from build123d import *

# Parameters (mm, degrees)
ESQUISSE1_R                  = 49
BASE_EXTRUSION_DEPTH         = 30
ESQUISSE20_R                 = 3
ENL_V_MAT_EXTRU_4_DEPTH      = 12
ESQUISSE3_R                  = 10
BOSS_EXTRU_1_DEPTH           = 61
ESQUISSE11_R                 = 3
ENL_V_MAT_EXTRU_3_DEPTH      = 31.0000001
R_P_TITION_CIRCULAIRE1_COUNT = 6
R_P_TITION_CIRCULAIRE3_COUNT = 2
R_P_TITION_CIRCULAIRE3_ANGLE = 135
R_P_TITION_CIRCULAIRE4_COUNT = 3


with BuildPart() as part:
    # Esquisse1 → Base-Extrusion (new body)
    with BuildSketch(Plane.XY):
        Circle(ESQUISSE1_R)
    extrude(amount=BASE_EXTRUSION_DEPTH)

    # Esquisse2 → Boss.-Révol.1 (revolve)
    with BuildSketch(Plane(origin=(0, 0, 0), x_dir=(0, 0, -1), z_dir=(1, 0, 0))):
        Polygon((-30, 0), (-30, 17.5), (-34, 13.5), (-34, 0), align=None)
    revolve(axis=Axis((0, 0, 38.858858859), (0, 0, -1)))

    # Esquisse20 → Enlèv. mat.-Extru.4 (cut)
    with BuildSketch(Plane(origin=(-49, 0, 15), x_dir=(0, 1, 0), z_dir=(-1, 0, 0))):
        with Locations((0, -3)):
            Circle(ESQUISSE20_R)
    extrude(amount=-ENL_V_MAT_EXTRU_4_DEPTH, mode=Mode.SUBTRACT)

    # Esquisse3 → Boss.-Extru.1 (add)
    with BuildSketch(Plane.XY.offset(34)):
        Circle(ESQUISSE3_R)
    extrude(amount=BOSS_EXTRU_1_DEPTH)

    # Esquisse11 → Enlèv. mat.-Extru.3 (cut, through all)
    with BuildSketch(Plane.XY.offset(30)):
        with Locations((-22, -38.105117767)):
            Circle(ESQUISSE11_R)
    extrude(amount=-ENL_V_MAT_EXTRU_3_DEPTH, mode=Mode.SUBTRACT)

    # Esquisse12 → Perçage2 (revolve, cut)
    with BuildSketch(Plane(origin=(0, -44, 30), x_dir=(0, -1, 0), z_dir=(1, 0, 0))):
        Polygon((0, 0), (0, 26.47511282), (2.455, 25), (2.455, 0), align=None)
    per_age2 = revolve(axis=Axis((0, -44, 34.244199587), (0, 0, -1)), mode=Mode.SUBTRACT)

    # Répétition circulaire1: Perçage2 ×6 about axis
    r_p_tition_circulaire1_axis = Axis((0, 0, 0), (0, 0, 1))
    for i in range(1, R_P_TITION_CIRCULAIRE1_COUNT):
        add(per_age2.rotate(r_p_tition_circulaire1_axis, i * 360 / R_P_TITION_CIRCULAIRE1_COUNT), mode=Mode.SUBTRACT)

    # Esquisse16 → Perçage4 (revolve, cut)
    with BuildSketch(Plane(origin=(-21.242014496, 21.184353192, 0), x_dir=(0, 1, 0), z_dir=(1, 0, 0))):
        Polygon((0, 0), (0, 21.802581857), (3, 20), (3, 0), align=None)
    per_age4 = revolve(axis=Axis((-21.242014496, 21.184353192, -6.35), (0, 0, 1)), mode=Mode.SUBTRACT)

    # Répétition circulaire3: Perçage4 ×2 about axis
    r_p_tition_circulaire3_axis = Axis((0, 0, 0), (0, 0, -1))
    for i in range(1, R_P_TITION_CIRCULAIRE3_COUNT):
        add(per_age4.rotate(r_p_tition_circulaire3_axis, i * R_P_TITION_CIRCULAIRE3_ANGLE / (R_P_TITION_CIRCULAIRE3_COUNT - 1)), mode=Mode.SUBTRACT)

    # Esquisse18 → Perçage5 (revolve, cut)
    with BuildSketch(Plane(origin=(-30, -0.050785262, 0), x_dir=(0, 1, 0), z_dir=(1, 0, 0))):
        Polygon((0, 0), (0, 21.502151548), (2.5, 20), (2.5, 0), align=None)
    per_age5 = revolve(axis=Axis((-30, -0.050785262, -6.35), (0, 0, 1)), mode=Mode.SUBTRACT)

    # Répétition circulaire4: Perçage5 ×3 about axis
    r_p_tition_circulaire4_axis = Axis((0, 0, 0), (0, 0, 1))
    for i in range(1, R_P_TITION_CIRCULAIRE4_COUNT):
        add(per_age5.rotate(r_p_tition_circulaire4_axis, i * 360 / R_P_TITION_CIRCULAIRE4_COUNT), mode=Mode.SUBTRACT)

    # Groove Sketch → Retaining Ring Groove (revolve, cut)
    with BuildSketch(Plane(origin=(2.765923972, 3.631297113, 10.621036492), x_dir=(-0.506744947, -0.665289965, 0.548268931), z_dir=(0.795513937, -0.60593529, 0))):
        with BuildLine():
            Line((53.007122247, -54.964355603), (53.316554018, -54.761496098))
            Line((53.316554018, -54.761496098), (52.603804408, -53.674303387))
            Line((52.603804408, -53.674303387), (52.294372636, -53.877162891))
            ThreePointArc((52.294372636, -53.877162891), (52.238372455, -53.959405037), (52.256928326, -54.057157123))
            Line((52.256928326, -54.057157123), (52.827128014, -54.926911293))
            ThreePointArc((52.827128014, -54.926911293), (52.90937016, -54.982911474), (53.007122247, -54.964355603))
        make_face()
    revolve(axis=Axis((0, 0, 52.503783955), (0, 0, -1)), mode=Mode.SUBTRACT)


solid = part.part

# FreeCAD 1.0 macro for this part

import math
import FreeCAD as App
import Part
import Sketcher
Q = App.Units.Quantity


def add_polygon(sketch, points):
    """Adds a closed chain of lines whose ends are joined by coincident constraints."""
    first, n = sketch.GeometryCount, len(points)
    for a, b in zip(points, points[1:] + points[:1]):
        sketch.addGeometry(Part.LineSegment(App.Vector(*a, 0), App.Vector(*b, 0)), False)
    for i in range(n):
        sketch.addConstraint(Sketcher.Constraint("Coincident", first + i, 2, first + (i + 1) % n, 1))

doc = App.newDocument("Part")
params = doc.addObject("Spreadsheet::Sheet", "Params")
for row, (alias, value) in enumerate([
    ("sketch1_diameter", "98 mm"),
    ("pad1_length", "30 mm"),
    ("sketch2_height", "4 mm"),
    ("sketch2_width", "17.5 mm"),
    ("revolution_angle", "360 deg"),
    ("sketch3_diameter", "6 mm"),
    ("pocket1_length", "12 mm"),
    ("sketch4_diameter", "20 mm"),
    ("pad2_length", "61 mm"),
    ("sketch5_diameter", "6 mm"),
    ("sketch6_height", "25 mm"),
    ("groove_angle", "360 deg"),
    ("sketch7_width", "3 mm"),
    ("sketch7_height", "20 mm"),
    ("groove2_angle", "360 deg"),
    ("sketch8_height", "20 mm"),
    ("sketch8_width", "2.5 mm"),
    ("groove3_angle", "360 deg"),
    ("sketch9_radius", "0.13 mm"),
    ("sketch9_length", "1.3 mm"),
    ("sketch9_length2", "0.37 mm"),
    ("groove4_angle", "360 deg"),
], start=1):
    params.set(f"A{row}", alias)
    params.set(f"B{row}", "=" + value)
    params.setAlias(f"B{row}", alias)

body = doc.addObject("PartDesign::Body", "Body")

# Sketch on XY plane
sketch1 = doc.addObject("Sketcher::SketchObject", "Sketch")
body.addObject(sketch1)
sketch1.AttachmentSupport = (doc.XY_Plane, [""])
sketch1.MapMode = "FlatFace"
sketch1.addGeometry(Part.Circle(App.Vector(0, 0, 0), App.Vector(0, 0, 1), 49), False)
sketch1.addConstraint([
    Sketcher.Constraint("Coincident", 0, 3, -1, 1),
    Sketcher.Constraint("Diameter", 0, 98.0),
])
sketch1.setExpression("Constraints[1]", "Params.sketch1_diameter")
pad1 = doc.addObject("PartDesign::Pad", "Pad")
body.addObject(pad1)
pad1.Profile = sketch1
pad1.setExpression("Length", "Params.pad1_length")

# Sketch on YZ plane
sketch2 = doc.addObject("Sketcher::SketchObject", "Sketch001")
body.addObject(sketch2)
sketch2.AttachmentSupport = (doc.YZ_Plane, [""])
sketch2.MapMode = "FlatFace"
add_polygon(sketch2, [(0, 30), (17.5, 30), (13.5, 34), (0, 34)])  # lines 0-3
sketch2.addConstraint([
    Sketcher.Constraint("Horizontal", 0),
    Sketcher.Constraint("Horizontal", 2),
    Sketcher.Constraint("Vertical", 3),
    Sketcher.Constraint("PointOnObject", 2, 2, -2),
    Sketcher.Constraint("DistanceY", 3, 2, 3, 1, 4.0),
    Sketcher.Constraint("Angle", 1, Q("135 deg")),
    Sketcher.Constraint("DistanceX", 0, 1, 0, 2, 17.5),
    Sketcher.Constraint("DistanceY", -1, 1, 0, 2, 30.0),
])
sketch2.setExpression("Constraints[8]", "Params.sketch2_height")
sketch2.setExpression("Constraints[10]", "Params.sketch2_width")
revolution = doc.addObject("PartDesign::Revolution", "Revolution")
body.addObject(revolution)
revolution.Profile = sketch2
revolution.ReferenceAxis = (sketch2, ["V_Axis"])
revolution.setExpression("Angle", "Params.revolution_angle")

# Sketch on YZ plane
sketch3 = doc.addObject("Sketcher::SketchObject", "Sketch002")
body.addObject(sketch3)
sketch3.AttachmentSupport = (doc.YZ_Plane, [""])
sketch3.MapMode = "FlatFace"
sketch3.AttachmentOffset = App.Placement(App.Vector(0, 0, -49), App.Rotation())
sketch3.addGeometry(Part.Circle(App.Vector(0, 18, 0), App.Vector(0, 0, 1), 3), False)
sketch3.addConstraint([
    Sketcher.Constraint("PointOnObject", 0, 3, -2),
    Sketcher.Constraint("Diameter", 0, 6.0),
    Sketcher.Constraint("DistanceY", -1, 1, 0, 3, 18.0),
])
sketch3.setExpression("Constraints[1]", "Params.sketch3_diameter")
pocket1 = doc.addObject("PartDesign::Pocket", "Pocket")
body.addObject(pocket1)
pocket1.Profile = sketch3
pocket1.setExpression("Length", "Params.pocket1_length")
pocket1.Reversed = True

# Sketch on XY plane
sketch4 = doc.addObject("Sketcher::SketchObject", "Sketch003")
body.addObject(sketch4)
sketch4.AttachmentSupport = (doc.XY_Plane, [""])
sketch4.MapMode = "FlatFace"
sketch4.AttachmentOffset = App.Placement(App.Vector(0, 0, 34), App.Rotation())
sketch4.addGeometry(Part.Circle(App.Vector(0, 0, 0), App.Vector(0, 0, 1), 10), False)
sketch4.addConstraint([
    Sketcher.Constraint("Coincident", 0, 3, -1, 1),
    Sketcher.Constraint("Diameter", 0, 20.0),
])
sketch4.setExpression("Constraints[1]", "Params.sketch4_diameter")
pad2 = doc.addObject("PartDesign::Pad", "Pad001")
body.addObject(pad2)
pad2.Profile = sketch4
pad2.setExpression("Length", "Params.pad2_length")

# Sketch on XY plane
sketch5 = doc.addObject("Sketcher::SketchObject", "Sketch004")
body.addObject(sketch5)
sketch5.AttachmentSupport = (doc.XY_Plane, [""])
sketch5.MapMode = "FlatFace"
sketch5.AttachmentOffset = App.Placement(App.Vector(0, 0, 30), App.Rotation())
sketch5.addGeometry(Part.Circle(App.Vector(-22, -38.1, 0), App.Vector(0, 0, 1), 3), False)
sketch5.addConstraint([
    Sketcher.Constraint("Diameter", 0, 6.0),
    Sketcher.Constraint("DistanceX", 0, 3, -1, 1, 22.0),
    Sketcher.Constraint("DistanceY", 0, 3, -1, 1, 38.105118),
])
sketch5.setExpression("Constraints[0]", "Params.sketch5_diameter")
pocket2 = doc.addObject("PartDesign::Pocket", "Pocket001")
body.addObject(pocket2)
pocket2.Profile = sketch5
pocket2.Type = "ThroughAll"

# Sketch on YZ plane
sketch6 = doc.addObject("Sketcher::SketchObject", "Sketch005")
body.addObject(sketch6)
sketch6.AttachmentSupport = (doc.YZ_Plane, [""])
sketch6.MapMode = "FlatFace"
add_polygon(sketch6, [(-44, 3.5), (-44, 30), (-46.5, 30), (-46.5, 5)])  # lines 0-3
sketch6.addGeometry(Part.LineSegment(App.Vector(-44, 30, 0), App.Vector(-44, 3.5, 0)), True)  # axis
sketch6.addConstraint([
    Sketcher.Constraint("Vertical", 0),
    Sketcher.Constraint("Horizontal", 1),
    Sketcher.Constraint("Vertical", 2),
    Sketcher.Constraint("Vertical", 4),
    Sketcher.Constraint("Coincident", 4, 1, 0, 2),
    Sketcher.Constraint("Equal", 0, 4),
    Sketcher.Constraint("DistanceY", 2, 2, 2, 1, 25.0),
    Sketcher.Constraint("Angle", 3, Q("-31 deg")),
    Sketcher.Constraint("DistanceX", 0, 2, -1, 1, 44.0),
    Sketcher.Constraint("DistanceY", -1, 1, 0, 2, 30.0),
    Sketcher.Constraint("DistanceX", 1, 2, 1, 1, 2.455),
])
sketch6.setExpression("Constraints[10]", "Params.sketch6_height")
groove = doc.addObject("PartDesign::Groove", "Groove")
body.addObject(groove)
groove.Profile = sketch6
groove.ReferenceAxis = (sketch6, ["Axis0"])
groove.setExpression("Angle", "Params.groove_angle")
doc.recompute()

polarpattern = doc.addObject("PartDesign::PolarPattern", "PolarPattern")
body.addObject(polarpattern)
polarpattern.Originals = [groove]
polarpattern.Axis = (doc.Z_Axis, [""])
polarpattern.Angle = 360
polarpattern.Occurrences = 6
body.Tip = polarpattern

# Sketch on YZ plane
sketch7 = doc.addObject("Sketcher::SketchObject", "Sketch006")
body.addObject(sketch7)
sketch7.AttachmentSupport = (doc.YZ_Plane, [""])
sketch7.MapMode = "FlatFace"
sketch7.AttachmentOffset = App.Placement(App.Vector(0, 0, -21.242014), App.Rotation())
add_polygon(sketch7, [(21.2, 21.8), (21.2, 0), (24.2, 0), (24.2, 20)])  # lines 0-3
sketch7.addGeometry(Part.LineSegment(App.Vector(21.2, 0, 0), App.Vector(21.2, 21.8, 0)), True)  # axis
sketch7.addConstraint([
    Sketcher.Constraint("Vertical", 0),
    Sketcher.Constraint("Horizontal", 1),
    Sketcher.Constraint("Vertical", 2),
    Sketcher.Constraint("Vertical", 4),
    Sketcher.Constraint("Coincident", 4, 1, 0, 2),
    Sketcher.Constraint("PointOnObject", 0, 2, -1),
    Sketcher.Constraint("Equal", 0, 4),
    Sketcher.Constraint("DistanceX", 1, 1, 1, 2, 3.0),
    Sketcher.Constraint("DistanceY", 2, 1, 2, 2, 20.0),
    Sketcher.Constraint("Angle", 3, Q("149 deg")),
    Sketcher.Constraint("DistanceX", -1, 1, 0, 2, 21.184353),
])
sketch7.setExpression("Constraints[11]", "Params.sketch7_width")
sketch7.setExpression("Constraints[12]", "Params.sketch7_height")
groove2 = doc.addObject("PartDesign::Groove", "Groove001")
body.addObject(groove2)
groove2.Profile = sketch7
groove2.ReferenceAxis = (sketch7, ["Axis0"])
groove2.setExpression("Angle", "Params.groove2_angle")
doc.recompute()

polarpattern2 = doc.addObject("PartDesign::PolarPattern", "PolarPattern001")
body.addObject(polarpattern2)
polarpattern2.Originals = [groove2]
polarpattern2.Axis = (doc.Z_Axis, [""])
polarpattern2.Angle = 135
polarpattern2.Occurrences = 2
polarpattern2.Reversed = True
body.Tip = polarpattern2

# Sketch on YZ plane
sketch8 = doc.addObject("Sketcher::SketchObject", "Sketch007")
body.addObject(sketch8)
sketch8.AttachmentSupport = (doc.YZ_Plane, [""])
sketch8.MapMode = "FlatFace"
sketch8.AttachmentOffset = App.Placement(App.Vector(0, 0, -30), App.Rotation())
add_polygon(sketch8, [(-0.1, 21.5), (-0.1, 0), (2.4, 0), (2.4, 20)])  # lines 0-3
sketch8.addGeometry(Part.LineSegment(App.Vector(-0.1, 0, 0), App.Vector(-0.1, 21.5, 0)), True)  # axis
sketch8.addConstraint([
    Sketcher.Constraint("Vertical", 0),
    Sketcher.Constraint("Horizontal", 1),
    Sketcher.Constraint("Vertical", 2),
    Sketcher.Constraint("Vertical", 4),
    Sketcher.Constraint("Coincident", 4, 1, 0, 2),
    Sketcher.Constraint("PointOnObject", 0, 2, -1),
    Sketcher.Constraint("Equal", 0, 4),
    Sketcher.Constraint("DistanceY", 2, 1, 2, 2, 20.0),
    Sketcher.Constraint("Angle", 3, Q("149 deg")),
    Sketcher.Constraint("DistanceX", 1, 1, 1, 2, 2.5),
    Sketcher.Constraint("DistanceX", 0, 2, -1, 1, 0.050785),
])
sketch8.setExpression("Constraints[11]", "Params.sketch8_height")
sketch8.setExpression("Constraints[13]", "Params.sketch8_width")
groove3 = doc.addObject("PartDesign::Groove", "Groove002")
body.addObject(groove3)
groove3.Profile = sketch8
groove3.ReferenceAxis = (sketch8, ["Axis0"])
groove3.setExpression("Angle", "Params.groove3_angle")
doc.recompute()

polarpattern3 = doc.addObject("PartDesign::PolarPattern", "PolarPattern002")
body.addObject(polarpattern3)
polarpattern3.Originals = [groove3]
polarpattern3.Axis = (doc.Z_Axis, [""])
polarpattern3.Angle = 360
polarpattern3.Occurrences = 3
body.Tip = polarpattern3

# Sketch on an angled plane
sketch9 = doc.addObject("Sketcher::SketchObject", "Sketch008")
body.addObject(sketch9)
sketch9.Placement = App.Placement(App.Vector(2.765924, 3.631297, 10.621036), App.Rotation(App.Vector(-0.506744947, -0.665289965, 0.548268931), App.Vector(-0.332215494, -0.436155576, -0.836302086), App.Vector(0.795513937, -0.60593529, 0), "ZXY"))
sketch9.addGeometry([
    Part.LineSegment(App.Vector(53.01, -54.96, 0), App.Vector(53.32, -54.76, 0)),  # 0
    Part.LineSegment(App.Vector(53.32, -54.76, 0), App.Vector(52.6, -53.67, 0)),  # 1
    Part.LineSegment(App.Vector(52.6, -53.67, 0), App.Vector(52.29, -53.88, 0)),  # 2
    Part.ArcOfCircle(Part.Circle(App.Vector(52.37, -53.99, 0), App.Vector(0, 0, 1), 0.13), math.radians(123), math.radians(213)),  # 3
    Part.LineSegment(App.Vector(52.26, -54.06, 0), App.Vector(52.83, -54.93, 0)),  # 4
    Part.ArcOfCircle(Part.Circle(App.Vector(52.94, -54.86, 0), App.Vector(0, 0, 1), 0.13), math.radians(-147), math.radians(-57)),  # 5
], False)
sketch9.addGeometry(Part.LineSegment(App.Vector(44.95, -60.24, 0), App.Vector(44.24, -59.16, 0)), True)  # axis
sketch9.addConstraint([
    Sketcher.Constraint("Coincident", 0, 2, 1, 1),
    Sketcher.Constraint("Coincident", 1, 2, 2, 1),
    Sketcher.Constraint("Tangent", 2, 2, 3, 1),
    Sketcher.Constraint("Tangent", 3, 2, 4, 1),
    Sketcher.Constraint("Tangent", 4, 2, 5, 1),
    Sketcher.Constraint("Tangent", 5, 2, 0, 1),
    Sketcher.Constraint("Equal", 3, 5),
    Sketcher.Constraint("Perpendicular", 0, 1),
    Sketcher.Constraint("Perpendicular", 1, 2),
    Sketcher.Constraint("Perpendicular", 2, 4),
    Sketcher.Constraint("Parallel", 4, 6),
    Sketcher.Constraint("Equal", 1, 6),
    Sketcher.Constraint("Radius", 3, 0.13),
    Sketcher.Constraint("Distance", 1, 1.3),
    Sketcher.Constraint("Distance", 0, 0.37),
    Sketcher.Constraint("DistanceX", 3, 3, 5, 3, 0.5702),
    Sketcher.Constraint("DistanceX", -1, 1, 3, 2, 52.256928),
    Sketcher.Constraint("DistanceY", 4, 2, -1, 1, 54.926911),
    Sketcher.Constraint("DistanceY", 6, 1, 3, 2, 6.187028),
    Sketcher.Constraint("DistanceX", 6, 1, 5, 2, 8.053589),
])
sketch9.setExpression("Constraints[12]", "Params.sketch9_radius")
sketch9.setExpression("Constraints[13]", "Params.sketch9_length")
sketch9.setExpression("Constraints[14]", "Params.sketch9_length2")
groove4 = doc.addObject("PartDesign::Groove", "Groove003")
body.addObject(groove4)
groove4.Profile = sketch9
groove4.ReferenceAxis = (sketch9, ["Axis0"])
groove4.setExpression("Angle", "Params.groove4_angle")

doc.recompute()
